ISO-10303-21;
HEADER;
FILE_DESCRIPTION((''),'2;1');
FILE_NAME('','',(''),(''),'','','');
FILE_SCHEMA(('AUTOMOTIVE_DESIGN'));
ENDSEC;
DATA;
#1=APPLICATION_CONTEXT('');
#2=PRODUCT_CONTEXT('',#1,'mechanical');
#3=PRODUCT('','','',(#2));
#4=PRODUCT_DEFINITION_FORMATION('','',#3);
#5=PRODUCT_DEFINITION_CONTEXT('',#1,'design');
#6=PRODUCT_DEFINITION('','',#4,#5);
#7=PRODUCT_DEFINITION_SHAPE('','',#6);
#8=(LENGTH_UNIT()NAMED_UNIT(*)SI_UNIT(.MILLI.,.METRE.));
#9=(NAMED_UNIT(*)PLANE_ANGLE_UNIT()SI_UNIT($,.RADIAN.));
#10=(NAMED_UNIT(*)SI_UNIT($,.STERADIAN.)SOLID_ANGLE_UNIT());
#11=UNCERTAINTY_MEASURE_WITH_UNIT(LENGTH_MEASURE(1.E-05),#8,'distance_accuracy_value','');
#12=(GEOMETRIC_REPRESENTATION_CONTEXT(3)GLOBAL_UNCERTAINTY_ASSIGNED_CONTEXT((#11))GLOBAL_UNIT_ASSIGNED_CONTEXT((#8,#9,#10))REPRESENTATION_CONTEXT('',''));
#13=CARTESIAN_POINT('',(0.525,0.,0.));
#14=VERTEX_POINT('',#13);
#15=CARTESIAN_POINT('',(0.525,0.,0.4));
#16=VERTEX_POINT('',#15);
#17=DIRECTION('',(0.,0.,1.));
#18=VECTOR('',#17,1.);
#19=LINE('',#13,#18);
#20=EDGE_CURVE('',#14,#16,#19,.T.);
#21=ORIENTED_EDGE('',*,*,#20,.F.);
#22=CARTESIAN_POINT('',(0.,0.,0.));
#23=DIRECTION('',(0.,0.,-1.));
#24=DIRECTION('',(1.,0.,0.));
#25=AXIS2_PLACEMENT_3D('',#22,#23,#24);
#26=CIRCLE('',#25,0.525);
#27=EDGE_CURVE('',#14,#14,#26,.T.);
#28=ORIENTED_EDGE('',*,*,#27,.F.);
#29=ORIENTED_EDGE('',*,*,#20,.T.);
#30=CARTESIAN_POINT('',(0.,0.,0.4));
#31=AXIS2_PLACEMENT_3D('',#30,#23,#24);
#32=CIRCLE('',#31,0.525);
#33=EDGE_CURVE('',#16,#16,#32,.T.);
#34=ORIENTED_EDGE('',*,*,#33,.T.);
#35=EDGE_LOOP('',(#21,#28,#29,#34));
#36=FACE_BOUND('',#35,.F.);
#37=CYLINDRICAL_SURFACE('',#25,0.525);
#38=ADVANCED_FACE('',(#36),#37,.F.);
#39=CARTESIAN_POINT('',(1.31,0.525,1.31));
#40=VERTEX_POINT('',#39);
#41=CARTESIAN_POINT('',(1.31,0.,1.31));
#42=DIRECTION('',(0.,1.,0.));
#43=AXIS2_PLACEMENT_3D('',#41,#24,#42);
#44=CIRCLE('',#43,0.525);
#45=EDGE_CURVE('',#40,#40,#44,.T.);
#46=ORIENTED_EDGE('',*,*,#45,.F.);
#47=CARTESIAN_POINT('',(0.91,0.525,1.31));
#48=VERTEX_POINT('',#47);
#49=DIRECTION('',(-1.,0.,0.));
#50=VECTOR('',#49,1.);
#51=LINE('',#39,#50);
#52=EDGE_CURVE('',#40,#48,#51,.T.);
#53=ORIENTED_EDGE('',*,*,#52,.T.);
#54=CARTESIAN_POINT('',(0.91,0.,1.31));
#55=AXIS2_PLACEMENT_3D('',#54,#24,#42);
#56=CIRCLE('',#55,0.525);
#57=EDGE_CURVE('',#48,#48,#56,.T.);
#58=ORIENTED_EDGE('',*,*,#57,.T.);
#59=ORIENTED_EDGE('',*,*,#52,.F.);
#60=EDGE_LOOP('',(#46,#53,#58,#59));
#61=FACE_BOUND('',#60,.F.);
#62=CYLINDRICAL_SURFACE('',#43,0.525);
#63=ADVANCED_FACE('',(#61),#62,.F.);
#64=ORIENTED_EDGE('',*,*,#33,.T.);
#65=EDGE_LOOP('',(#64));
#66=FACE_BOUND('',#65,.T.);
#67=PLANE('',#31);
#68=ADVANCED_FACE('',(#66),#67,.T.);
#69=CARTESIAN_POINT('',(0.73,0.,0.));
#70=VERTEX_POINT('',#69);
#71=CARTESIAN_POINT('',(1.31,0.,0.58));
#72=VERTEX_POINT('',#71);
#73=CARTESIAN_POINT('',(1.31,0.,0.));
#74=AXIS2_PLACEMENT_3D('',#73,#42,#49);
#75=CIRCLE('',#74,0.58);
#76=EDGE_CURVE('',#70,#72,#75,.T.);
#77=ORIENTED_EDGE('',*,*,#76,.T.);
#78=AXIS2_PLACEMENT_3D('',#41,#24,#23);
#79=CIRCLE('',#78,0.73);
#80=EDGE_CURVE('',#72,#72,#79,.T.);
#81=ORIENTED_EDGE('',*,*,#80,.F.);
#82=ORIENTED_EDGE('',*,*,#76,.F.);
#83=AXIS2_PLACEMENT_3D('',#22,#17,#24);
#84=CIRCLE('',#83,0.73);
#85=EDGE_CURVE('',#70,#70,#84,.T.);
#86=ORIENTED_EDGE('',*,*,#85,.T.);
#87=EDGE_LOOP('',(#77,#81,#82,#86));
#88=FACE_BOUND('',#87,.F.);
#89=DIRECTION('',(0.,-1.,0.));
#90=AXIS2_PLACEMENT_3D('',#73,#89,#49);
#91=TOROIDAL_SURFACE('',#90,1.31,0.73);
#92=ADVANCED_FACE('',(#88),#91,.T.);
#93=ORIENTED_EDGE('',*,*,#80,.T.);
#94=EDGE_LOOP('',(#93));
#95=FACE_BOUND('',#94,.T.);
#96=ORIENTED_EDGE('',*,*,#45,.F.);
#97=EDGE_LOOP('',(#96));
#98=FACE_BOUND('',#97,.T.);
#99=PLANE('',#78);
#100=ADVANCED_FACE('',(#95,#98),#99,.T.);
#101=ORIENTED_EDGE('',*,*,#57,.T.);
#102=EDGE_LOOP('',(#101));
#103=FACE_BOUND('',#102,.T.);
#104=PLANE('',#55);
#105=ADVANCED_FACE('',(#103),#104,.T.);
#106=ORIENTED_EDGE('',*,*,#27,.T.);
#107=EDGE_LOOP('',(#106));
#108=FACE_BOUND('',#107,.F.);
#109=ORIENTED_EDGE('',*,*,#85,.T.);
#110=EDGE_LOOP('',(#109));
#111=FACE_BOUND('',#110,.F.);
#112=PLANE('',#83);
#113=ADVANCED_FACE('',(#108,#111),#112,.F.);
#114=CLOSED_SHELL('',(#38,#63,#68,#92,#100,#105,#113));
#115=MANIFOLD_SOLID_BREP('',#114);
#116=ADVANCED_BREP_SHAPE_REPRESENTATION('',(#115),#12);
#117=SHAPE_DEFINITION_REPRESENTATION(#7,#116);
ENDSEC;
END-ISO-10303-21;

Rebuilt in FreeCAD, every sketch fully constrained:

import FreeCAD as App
import Part
import Sketcher
from FreeCAD import Vector
Q = App.Units.Quantity

doc = App.newDocument("Part")
body = doc.addObject("PartDesign::Body", "Body")

# Sketch on XY plane
sketch1 = body.newObject("Sketcher::SketchObject", "Sketch")
sketch1.AttachmentSupport = (doc.getObject("XY_Plane"), [""])
sketch1.MapMode = "FlatFace"
sketch1.addGeometry(Part.Circle(Vector(0, 0, 0), Vector(0, 0, 1), 0.7), False)
sketch1.addGeometry(Part.LineSegment(Vector(1.3, 0, 0), Vector(1.3, 10, 0)), True)  # axis
sketch1.addConstraint([
    Sketcher.Constraint("Vertical", 1),
    Sketcher.Constraint("Coincident", 0, 3, -1, 1),
    Sketcher.Constraint("PointOnObject", 1, 1, -1),
    Sketcher.Constraint("Diameter", 0, Q("1.46 mm")),
    Sketcher.Constraint("DistanceY", 1, 1, 1, 2, Q("10 mm")),
    Sketcher.Constraint("DistanceX", -1, 1, 1, 1, Q("1.31 mm")),
])
revolution = body.newObject("PartDesign::Revolution", "Revolution")
revolution.Profile = sketch1
revolution.ReferenceAxis = (sketch1, ["Axis0"])
revolution.Angle = 90

# Sketch on YZ plane
sketch2 = body.newObject("Sketcher::SketchObject", "Sketch001")
sketch2.AttachmentSupport = (doc.getObject("YZ_Plane"), [""])
sketch2.MapMode = "FlatFace"
sketch2.AttachmentOffset = App.Placement(Vector(0, 0, 1.31), App.Rotation())
sketch2.addGeometry(Part.Circle(Vector(0, 1.3, 0), Vector(0, 0, 1), 0.5), False)
sketch2.addConstraint([
    Sketcher.Constraint("PointOnObject", 0, 3, -2),
    Sketcher.Constraint("Diameter", 0, Q("1.05 mm")),
    Sketcher.Constraint("DistanceY", -1, 1, 0, 3, Q("1.31 mm")),
])
pocket1 = body.newObject("PartDesign::Pocket", "Pocket")
pocket1.Profile = sketch2
pocket1.Length = 0.4

# Sketch on XY plane
sketch3 = body.newObject("Sketcher::SketchObject", "Sketch002")
sketch3.AttachmentSupport = (doc.getObject("XY_Plane"), [""])
sketch3.MapMode = "FlatFace"
sketch3.addGeometry(Part.Circle(Vector(0, 0, 0), Vector(0, 0, 1), 0.5), False)
sketch3.addConstraint([
    Sketcher.Constraint("Coincident", 0, 3, -1, 1),
    Sketcher.Constraint("Diameter", 0, Q("1.05 mm")),
])
pocket2 = body.newObject("PartDesign::Pocket", "Pocket001")
pocket2.Profile = sketch3
pocket2.Length = 0.4
pocket2.Reversed = True

doc.recompute()
